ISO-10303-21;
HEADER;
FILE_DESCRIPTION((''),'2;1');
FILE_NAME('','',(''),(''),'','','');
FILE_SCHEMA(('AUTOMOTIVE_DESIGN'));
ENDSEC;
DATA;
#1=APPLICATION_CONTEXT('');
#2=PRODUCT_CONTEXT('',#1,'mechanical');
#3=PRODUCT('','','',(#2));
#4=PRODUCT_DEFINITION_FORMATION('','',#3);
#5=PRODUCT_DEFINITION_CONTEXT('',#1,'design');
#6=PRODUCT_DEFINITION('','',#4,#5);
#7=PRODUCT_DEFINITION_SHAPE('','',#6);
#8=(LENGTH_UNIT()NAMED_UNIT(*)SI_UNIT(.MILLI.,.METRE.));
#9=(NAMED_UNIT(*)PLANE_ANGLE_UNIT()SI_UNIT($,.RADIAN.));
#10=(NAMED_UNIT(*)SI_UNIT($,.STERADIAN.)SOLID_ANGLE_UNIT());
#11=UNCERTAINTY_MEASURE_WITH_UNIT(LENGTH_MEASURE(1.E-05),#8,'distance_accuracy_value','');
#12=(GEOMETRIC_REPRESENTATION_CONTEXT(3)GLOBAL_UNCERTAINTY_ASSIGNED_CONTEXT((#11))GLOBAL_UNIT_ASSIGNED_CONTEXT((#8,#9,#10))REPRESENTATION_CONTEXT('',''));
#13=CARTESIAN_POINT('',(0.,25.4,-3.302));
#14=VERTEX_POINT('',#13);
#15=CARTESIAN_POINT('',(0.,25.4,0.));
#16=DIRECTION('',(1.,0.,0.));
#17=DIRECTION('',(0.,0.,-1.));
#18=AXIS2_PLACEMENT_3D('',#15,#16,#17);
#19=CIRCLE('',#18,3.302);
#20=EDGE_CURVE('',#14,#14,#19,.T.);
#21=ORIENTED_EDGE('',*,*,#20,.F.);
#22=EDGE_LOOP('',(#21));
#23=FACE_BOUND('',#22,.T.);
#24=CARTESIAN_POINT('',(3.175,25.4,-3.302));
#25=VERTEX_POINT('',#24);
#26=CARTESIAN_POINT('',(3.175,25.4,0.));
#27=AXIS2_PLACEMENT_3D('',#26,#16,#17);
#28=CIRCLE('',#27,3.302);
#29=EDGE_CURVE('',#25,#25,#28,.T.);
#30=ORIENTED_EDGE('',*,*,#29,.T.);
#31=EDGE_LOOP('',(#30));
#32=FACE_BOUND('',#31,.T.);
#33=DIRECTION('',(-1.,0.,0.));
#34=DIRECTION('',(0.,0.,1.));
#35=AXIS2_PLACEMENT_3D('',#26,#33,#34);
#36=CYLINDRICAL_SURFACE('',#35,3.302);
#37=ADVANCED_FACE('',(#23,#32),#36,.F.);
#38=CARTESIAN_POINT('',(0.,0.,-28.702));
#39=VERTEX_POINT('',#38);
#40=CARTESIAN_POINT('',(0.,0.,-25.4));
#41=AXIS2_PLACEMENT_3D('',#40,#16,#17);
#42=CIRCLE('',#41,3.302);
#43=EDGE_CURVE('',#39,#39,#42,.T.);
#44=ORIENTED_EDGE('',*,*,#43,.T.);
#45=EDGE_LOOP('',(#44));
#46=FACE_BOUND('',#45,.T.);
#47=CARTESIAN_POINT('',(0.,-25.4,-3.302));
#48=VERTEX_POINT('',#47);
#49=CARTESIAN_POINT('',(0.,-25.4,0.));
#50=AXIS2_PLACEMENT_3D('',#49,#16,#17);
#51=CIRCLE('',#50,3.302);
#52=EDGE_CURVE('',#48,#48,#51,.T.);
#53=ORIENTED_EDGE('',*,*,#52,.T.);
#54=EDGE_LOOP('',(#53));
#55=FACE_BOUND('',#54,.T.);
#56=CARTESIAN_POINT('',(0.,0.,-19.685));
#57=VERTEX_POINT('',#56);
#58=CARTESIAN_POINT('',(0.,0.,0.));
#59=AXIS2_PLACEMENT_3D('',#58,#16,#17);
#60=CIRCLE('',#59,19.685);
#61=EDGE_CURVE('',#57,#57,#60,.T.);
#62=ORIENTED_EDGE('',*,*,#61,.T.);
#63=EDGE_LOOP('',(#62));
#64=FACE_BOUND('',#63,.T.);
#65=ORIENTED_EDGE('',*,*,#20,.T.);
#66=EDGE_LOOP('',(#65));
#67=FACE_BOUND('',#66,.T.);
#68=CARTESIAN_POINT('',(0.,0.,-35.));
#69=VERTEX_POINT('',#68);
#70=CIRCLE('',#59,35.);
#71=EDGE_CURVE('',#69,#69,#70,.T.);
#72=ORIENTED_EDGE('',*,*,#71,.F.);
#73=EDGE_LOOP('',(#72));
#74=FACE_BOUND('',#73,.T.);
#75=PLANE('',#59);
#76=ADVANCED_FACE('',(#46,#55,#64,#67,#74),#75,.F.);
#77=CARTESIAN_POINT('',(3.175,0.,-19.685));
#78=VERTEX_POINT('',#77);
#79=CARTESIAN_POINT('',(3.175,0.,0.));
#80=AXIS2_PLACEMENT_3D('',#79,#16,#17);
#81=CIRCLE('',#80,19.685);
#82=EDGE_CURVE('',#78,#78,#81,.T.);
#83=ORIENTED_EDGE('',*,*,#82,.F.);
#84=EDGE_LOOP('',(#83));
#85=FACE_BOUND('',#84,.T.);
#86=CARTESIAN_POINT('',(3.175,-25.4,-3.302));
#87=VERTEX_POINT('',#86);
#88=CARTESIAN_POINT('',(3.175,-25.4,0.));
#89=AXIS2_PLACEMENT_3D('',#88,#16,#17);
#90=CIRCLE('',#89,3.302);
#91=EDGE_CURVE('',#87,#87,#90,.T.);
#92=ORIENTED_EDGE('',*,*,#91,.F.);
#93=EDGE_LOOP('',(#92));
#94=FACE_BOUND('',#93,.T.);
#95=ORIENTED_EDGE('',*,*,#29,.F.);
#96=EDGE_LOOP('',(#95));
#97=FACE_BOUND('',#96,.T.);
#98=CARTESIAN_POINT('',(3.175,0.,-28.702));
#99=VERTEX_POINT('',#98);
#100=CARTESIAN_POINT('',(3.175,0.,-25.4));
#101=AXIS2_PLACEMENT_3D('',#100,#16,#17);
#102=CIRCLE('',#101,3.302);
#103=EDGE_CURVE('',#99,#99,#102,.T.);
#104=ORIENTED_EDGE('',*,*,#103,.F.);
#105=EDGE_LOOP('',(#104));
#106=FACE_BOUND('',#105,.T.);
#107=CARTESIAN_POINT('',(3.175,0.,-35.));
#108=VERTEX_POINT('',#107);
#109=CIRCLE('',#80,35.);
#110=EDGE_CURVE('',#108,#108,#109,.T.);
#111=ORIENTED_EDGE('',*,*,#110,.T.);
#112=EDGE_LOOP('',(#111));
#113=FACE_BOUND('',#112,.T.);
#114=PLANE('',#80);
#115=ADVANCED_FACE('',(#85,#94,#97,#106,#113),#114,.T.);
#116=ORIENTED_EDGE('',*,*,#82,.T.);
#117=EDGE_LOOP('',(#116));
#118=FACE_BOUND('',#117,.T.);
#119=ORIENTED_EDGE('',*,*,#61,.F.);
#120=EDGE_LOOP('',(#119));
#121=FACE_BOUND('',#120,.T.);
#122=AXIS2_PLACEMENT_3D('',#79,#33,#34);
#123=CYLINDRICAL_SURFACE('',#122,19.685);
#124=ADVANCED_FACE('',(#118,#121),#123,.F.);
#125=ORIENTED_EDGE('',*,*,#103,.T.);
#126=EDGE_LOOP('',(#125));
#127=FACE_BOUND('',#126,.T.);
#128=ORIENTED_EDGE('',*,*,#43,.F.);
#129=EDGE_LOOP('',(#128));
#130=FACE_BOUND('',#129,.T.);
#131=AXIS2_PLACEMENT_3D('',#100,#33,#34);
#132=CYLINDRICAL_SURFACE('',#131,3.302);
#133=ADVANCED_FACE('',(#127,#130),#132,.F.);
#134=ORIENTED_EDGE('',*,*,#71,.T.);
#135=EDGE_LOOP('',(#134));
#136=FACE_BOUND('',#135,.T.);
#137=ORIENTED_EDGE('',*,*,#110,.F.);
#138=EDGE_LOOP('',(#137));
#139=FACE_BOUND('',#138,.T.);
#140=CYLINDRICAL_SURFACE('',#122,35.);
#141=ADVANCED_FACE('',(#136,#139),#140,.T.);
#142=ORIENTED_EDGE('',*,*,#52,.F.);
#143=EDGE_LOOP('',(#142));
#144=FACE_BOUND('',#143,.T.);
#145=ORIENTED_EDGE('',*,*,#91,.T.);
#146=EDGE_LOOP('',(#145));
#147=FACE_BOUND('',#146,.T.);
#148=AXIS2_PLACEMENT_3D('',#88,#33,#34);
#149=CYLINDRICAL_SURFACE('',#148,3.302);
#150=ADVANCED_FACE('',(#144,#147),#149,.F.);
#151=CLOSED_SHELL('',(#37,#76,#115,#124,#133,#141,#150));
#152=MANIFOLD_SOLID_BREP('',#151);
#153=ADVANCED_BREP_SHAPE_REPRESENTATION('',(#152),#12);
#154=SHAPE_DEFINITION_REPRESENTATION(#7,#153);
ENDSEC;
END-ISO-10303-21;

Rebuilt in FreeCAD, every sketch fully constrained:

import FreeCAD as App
import Part
import Sketcher

V = App.Vector
Q = App.Units.Quantity

doc = App.newDocument("Part")
body = doc.addObject("PartDesign::Body", "Body")

# Sketch on YZ plane
sketch1 = doc.addObject("Sketcher::SketchObject", "Sketch")
body.addObject(sketch1)
sketch1.AttachmentSupport = (doc.YZ_Plane, [""])
sketch1.MapMode = "FlatFace"
sketch1.addGeometry(Part.Circle(V(0, 0, 0), V(0, 0, 1), 35), False)
sketch1.addGeometry(Part.Circle(V(-25.4, 0, 0), V(0, 0, 1), 3.3), False)
sketch1.addGeometry(Part.Circle(V(0, 0, 0), V(0, 0, 1), 19.7), False)
sketch1.addGeometry(Part.Circle(V(0, -25.4, 0), V(0, 0, 1), 3.3), False)
sketch1.addGeometry(Part.Circle(V(25.4, 0, 0), V(0, 0, 1), 3.3), False)
sketch1.addConstraint(Sketcher.Constraint("Coincident", 0, 3, -1, 1))
sketch1.addConstraint(Sketcher.Constraint("Coincident", 2, 3, -1, 1))
sketch1.addConstraint(Sketcher.Constraint("Equal", 1, 3))
sketch1.addConstraint(Sketcher.Constraint("Equal", 3, 4))
sketch1.addConstraint(Sketcher.Constraint("Symmetric", 1, 3, 4, 3, -1, 1))
sketch1.addConstraint(Sketcher.Constraint("PointOnObject", 1, 3, -1))
sketch1.addConstraint(Sketcher.Constraint("PointOnObject", 3, 3, -2))
sketch1.addConstraint(Sketcher.Constraint("Diameter", 1, Q("0.26 in")))
sketch1.addConstraint(Sketcher.Constraint("Diameter", 2, Q("1.55 in")))
sketch1.addConstraint(Sketcher.Constraint("DistanceX", 1, 3, -1, 1, Q("1 in")))
sketch1.addConstraint(Sketcher.Constraint("DistanceY", 3, 3, -1, 1, Q("1 in")))
sketch1.addConstraint(Sketcher.Constraint("Diameter", 0, 70.0))
pad1 = doc.addObject("PartDesign::Pad", "Pad")
body.addObject(pad1)
pad1.Profile = sketch1
pad1.Length = Q("0.125 in")

doc.recompute()
